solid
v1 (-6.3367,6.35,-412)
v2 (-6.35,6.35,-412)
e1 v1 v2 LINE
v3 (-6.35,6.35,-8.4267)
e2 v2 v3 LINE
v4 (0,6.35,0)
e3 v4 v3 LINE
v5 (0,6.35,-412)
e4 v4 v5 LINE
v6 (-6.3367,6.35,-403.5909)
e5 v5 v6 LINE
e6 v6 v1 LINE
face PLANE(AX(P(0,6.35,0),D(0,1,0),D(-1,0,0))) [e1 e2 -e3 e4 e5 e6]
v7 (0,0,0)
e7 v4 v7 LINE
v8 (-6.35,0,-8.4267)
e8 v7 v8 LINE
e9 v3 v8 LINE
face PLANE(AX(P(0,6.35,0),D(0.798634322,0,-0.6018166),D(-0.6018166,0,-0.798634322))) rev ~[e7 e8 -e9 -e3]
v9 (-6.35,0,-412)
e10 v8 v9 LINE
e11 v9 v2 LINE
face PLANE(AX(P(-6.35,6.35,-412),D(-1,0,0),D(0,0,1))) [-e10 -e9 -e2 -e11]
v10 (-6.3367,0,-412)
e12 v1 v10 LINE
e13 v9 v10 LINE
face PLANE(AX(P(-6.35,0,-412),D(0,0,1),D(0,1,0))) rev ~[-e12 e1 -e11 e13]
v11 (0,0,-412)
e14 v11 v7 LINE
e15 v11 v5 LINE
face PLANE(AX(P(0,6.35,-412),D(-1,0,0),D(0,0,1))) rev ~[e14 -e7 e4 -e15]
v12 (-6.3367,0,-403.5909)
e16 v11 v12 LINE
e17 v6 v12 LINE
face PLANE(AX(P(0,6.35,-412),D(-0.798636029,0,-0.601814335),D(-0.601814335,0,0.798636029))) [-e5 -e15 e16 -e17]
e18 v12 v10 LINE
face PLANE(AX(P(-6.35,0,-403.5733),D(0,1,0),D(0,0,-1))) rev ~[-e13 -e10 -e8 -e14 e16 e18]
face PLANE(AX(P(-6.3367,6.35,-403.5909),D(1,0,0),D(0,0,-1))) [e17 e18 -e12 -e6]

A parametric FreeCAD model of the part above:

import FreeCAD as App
import Part
import Sketcher
Q = App.Units.Quantity


def add_polygon(sketch, points):
    """Adds a closed chain of lines whose ends are joined by coincident constraints."""
    first, n = sketch.GeometryCount, len(points)
    for a, b in zip(points, points[1:] + points[:1]):
        sketch.addGeometry(Part.LineSegment(App.Vector(*a, 0), App.Vector(*b, 0)), False)
    for i in range(n):
        sketch.addConstraint(Sketcher.Constraint("Coincident", first + i, 2, first + (i + 1) % n, 1))

doc = App.newDocument("Part")
body = doc.addObject("PartDesign::Body", "Body")

# Sketch on XZ plane
sketch1 = doc.addObject("Sketcher::SketchObject", "Sketch")
body.addObject(sketch1)
sketch1.AttachmentSupport = (doc.XZ_Plane, [""])
sketch1.MapMode = "FlatFace"
add_polygon(sketch1, [(-6, 0), (0, 0), (0, -412), (-6, -412)])  # lines 0-3
sketch1.addConstraint(Sketcher.Constraint("Horizontal", 0))
sketch1.addConstraint(Sketcher.Constraint("Vertical", 1))
sketch1.addConstraint(Sketcher.Constraint("Horizontal", 2))
sketch1.addConstraint(Sketcher.Constraint("Vertical", 3))
sketch1.addConstraint(Sketcher.Constraint("Coincident", 0, 2, -1, 1))
sketch1.addConstraint(Sketcher.Constraint("DistanceY", 1, 2, 1, 1, 412.0))
sketch1.addConstraint(Sketcher.Constraint("DistanceX", 0, 1, 0, 2, 6.35))
pad1 = doc.addObject("PartDesign::Pad", "Pad")
body.addObject(pad1)
pad1.Profile = sketch1
pad1.Length = 6.35
pad1.Reversed = True

# Sketch on YZ plane
sketch2 = doc.addObject("Sketcher::SketchObject", "Sketch001")
body.addObject(sketch2)
sketch2.AttachmentSupport = (doc.YZ_Plane, [""])
sketch2.MapMode = "FlatFace"
sketch2.AttachmentOffset = App.Placement(App.Vector(0, 0, -6.35), App.Rotation())
add_polygon(sketch2, [(0, 0), (6, 0), (0, -8)])  # lines 0-2
sketch2.addConstraint(Sketcher.Constraint("Horizontal", 0))
sketch2.addConstraint(Sketcher.Constraint("Vertical", 2))
sketch2.addConstraint(Sketcher.Constraint("Coincident", 2, 2, -1, 1))
sketch2.addConstraint(Sketcher.Constraint("Angle", 1, Q("-127 deg")))
sketch2.addConstraint(Sketcher.Constraint("DistanceX", 0, 1, 0, 2, 6.35))
pocket1 = doc.addObject("PartDesign::Pocket", "Pocket")
body.addObject(pocket1)
pocket1.Profile = sketch2
pocket1.Length = 10
pocket1.Reversed = True

# Sketch on YZ plane
sketch3 = doc.addObject("Sketcher::SketchObject", "Sketch002")
body.addObject(sketch3)
sketch3.AttachmentSupport = (doc.YZ_Plane, [""])
sketch3.MapMode = "FlatFace"
sketch3.AttachmentOffset = App.Placement(App.Vector(0, 0, -6.35), App.Rotation())
add_polygon(sketch3, [(0, -404), (6, -412), (0, -412)])  # lines 0-2
sketch3.addConstraint(Sketcher.Constraint("Horizontal", 1))
sketch3.addConstraint(Sketcher.Constraint("Vertical", 2))
sketch3.addConstraint(Sketcher.Constraint("PointOnObject", 1, 2, -2))
sketch3.addConstraint(Sketcher.Constraint("Angle", 0, Q("-53 deg")))
sketch3.addConstraint(Sketcher.Constraint("DistanceY", 0, 2, -1, 1, 412.0))
sketch3.addConstraint(Sketcher.Constraint("DistanceX", 1, 2, 1, 1, 6.35))
pocket2 = doc.addObject("PartDesign::Pocket", "Pocket001")
body.addObject(pocket2)
pocket2.Profile = sketch3
pocket2.Length = 10
pocket2.Reversed = True

# Sketch on YZ plane
sketch4 = doc.addObject("Sketcher::SketchObject", "Sketch003")
body.addObject(sketch4)
sketch4.AttachmentSupport = (doc.YZ_Plane, [""])
sketch4.MapMode = "FlatFace"
sketch4.AttachmentOffset = App.Placement(App.Vector(0, 0, -6.35), App.Rotation())
add_polygon(sketch4, [(0, 0), (6, 0), (0, -8)])  # lines 0-2
sketch4.addConstraint(Sketcher.Constraint("Horizontal", 0))
sketch4.addConstraint(Sketcher.Constraint("Vertical", 2))
sketch4.addConstraint(Sketcher.Constraint("Coincident", 2, 2, -1, 1))
sketch4.addConstraint(Sketcher.Constraint("Angle", 1, Q("-126.9998 deg")))
sketch4.addConstraint(Sketcher.Constraint("DistanceX", 0, 1, 0, 2, 6.35))
pad2 = doc.addObject("PartDesign::Pad", "Pad001")
body.addObject(pad2)
pad2.Profile = sketch4
pad2.Length = 6.35

# Sketch on YZ plane
sketch5 = doc.addObject("Sketcher::SketchObject", "Sketch004")
body.addObject(sketch5)
sketch5.AttachmentSupport = (doc.YZ_Plane, [""])
sketch5.MapMode = "FlatFace"
sketch5.AttachmentOffset = App.Placement(App.Vector(0, 0, -6.35), App.Rotation())
add_polygon(sketch5, [(0, -412), (0, -404), (6, -412)])  # lines 0-2
sketch5.addConstraint(Sketcher.Constraint("Vertical", 0))
sketch5.addConstraint(Sketcher.Constraint("Horizontal", 2))
sketch5.addConstraint(Sketcher.Constraint("PointOnObject", 0, 2, -2))
sketch5.addConstraint(Sketcher.Constraint("Angle", 1, Q("-53 deg")))
sketch5.addConstraint(Sketcher.Constraint("DistanceY", 1, 2, -1, 1, 412.0))
sketch5.addConstraint(Sketcher.Constraint("DistanceX", 2, 2, 2, 1, 6.35))
pad3 = doc.addObject("PartDesign::Pad", "Pad002")
body.addObject(pad3)
pad3.Profile = sketch5
pad3.Length = 6.35

# Sketch on XZ plane
sketch6 = doc.addObject("Sketcher::SketchObject", "Sketch005")
body.addObject(sketch6)
sketch6.AttachmentSupport = (doc.XZ_Plane, [""])
sketch6.MapMode = "FlatFace"
sketch6.AttachmentOffset = App.Placement(App.Vector(0, 0, -6.35), App.Rotation())
add_polygon(sketch6, [(-6, -8), (-6, 0), (0, 0)])  # lines 0-2
sketch6.addConstraint(Sketcher.Constraint("Vertical", 0))
sketch6.addConstraint(Sketcher.Constraint("Horizontal", 1))
sketch6.addConstraint(Sketcher.Constraint("Coincident", 1, 2, -1, 1))
sketch6.addConstraint(Sketcher.Constraint("Angle", 2, Q("-127 deg")))
sketch6.addConstraint(Sketcher.Constraint("DistanceX", 1, 1, 1, 2, 6.35))
pocket3 = doc.addObject("PartDesign::Pocket", "Pocket002")
body.addObject(pocket3)
pocket3.Profile = sketch6
pocket3.Length = 10
pocket3.Reversed = True

# Sketch on XZ plane
sketch7 = doc.addObject("Sketcher::SketchObject", "Sketch006")
body.addObject(sketch7)
sketch7.AttachmentSupport = (doc.XZ_Plane, [""])
sketch7.MapMode = "FlatFace"
sketch7.AttachmentOffset = App.Placement(App.Vector(0, 0, -6.35), App.Rotation())
add_polygon(sketch7, [(-6, -404), (0, -412), (-6, -412)])  # lines 0-2
sketch7.addConstraint(Sketcher.Constraint("Horizontal", 1))
sketch7.addConstraint(Sketcher.Constraint("Vertical", 2))
sketch7.addConstraint(Sketcher.Constraint("PointOnObject", 0, 2, -2))
sketch7.addConstraint(Sketcher.Constraint("Angle", 0, Q("-53 deg")))
sketch7.addConstraint(Sketcher.Constraint("DistanceY", 0, 2, -1, 1, 412.0))
sketch7.addConstraint(Sketcher.Constraint("DistanceY", 2, 1, 2, 2, 8.409))
pocket4 = doc.addObject("PartDesign::Pocket", "Pocket003")
body.addObject(pocket4)
pocket4.Profile = sketch7
pocket4.Length = 10
pocket4.Reversed = True

doc.recompute()
